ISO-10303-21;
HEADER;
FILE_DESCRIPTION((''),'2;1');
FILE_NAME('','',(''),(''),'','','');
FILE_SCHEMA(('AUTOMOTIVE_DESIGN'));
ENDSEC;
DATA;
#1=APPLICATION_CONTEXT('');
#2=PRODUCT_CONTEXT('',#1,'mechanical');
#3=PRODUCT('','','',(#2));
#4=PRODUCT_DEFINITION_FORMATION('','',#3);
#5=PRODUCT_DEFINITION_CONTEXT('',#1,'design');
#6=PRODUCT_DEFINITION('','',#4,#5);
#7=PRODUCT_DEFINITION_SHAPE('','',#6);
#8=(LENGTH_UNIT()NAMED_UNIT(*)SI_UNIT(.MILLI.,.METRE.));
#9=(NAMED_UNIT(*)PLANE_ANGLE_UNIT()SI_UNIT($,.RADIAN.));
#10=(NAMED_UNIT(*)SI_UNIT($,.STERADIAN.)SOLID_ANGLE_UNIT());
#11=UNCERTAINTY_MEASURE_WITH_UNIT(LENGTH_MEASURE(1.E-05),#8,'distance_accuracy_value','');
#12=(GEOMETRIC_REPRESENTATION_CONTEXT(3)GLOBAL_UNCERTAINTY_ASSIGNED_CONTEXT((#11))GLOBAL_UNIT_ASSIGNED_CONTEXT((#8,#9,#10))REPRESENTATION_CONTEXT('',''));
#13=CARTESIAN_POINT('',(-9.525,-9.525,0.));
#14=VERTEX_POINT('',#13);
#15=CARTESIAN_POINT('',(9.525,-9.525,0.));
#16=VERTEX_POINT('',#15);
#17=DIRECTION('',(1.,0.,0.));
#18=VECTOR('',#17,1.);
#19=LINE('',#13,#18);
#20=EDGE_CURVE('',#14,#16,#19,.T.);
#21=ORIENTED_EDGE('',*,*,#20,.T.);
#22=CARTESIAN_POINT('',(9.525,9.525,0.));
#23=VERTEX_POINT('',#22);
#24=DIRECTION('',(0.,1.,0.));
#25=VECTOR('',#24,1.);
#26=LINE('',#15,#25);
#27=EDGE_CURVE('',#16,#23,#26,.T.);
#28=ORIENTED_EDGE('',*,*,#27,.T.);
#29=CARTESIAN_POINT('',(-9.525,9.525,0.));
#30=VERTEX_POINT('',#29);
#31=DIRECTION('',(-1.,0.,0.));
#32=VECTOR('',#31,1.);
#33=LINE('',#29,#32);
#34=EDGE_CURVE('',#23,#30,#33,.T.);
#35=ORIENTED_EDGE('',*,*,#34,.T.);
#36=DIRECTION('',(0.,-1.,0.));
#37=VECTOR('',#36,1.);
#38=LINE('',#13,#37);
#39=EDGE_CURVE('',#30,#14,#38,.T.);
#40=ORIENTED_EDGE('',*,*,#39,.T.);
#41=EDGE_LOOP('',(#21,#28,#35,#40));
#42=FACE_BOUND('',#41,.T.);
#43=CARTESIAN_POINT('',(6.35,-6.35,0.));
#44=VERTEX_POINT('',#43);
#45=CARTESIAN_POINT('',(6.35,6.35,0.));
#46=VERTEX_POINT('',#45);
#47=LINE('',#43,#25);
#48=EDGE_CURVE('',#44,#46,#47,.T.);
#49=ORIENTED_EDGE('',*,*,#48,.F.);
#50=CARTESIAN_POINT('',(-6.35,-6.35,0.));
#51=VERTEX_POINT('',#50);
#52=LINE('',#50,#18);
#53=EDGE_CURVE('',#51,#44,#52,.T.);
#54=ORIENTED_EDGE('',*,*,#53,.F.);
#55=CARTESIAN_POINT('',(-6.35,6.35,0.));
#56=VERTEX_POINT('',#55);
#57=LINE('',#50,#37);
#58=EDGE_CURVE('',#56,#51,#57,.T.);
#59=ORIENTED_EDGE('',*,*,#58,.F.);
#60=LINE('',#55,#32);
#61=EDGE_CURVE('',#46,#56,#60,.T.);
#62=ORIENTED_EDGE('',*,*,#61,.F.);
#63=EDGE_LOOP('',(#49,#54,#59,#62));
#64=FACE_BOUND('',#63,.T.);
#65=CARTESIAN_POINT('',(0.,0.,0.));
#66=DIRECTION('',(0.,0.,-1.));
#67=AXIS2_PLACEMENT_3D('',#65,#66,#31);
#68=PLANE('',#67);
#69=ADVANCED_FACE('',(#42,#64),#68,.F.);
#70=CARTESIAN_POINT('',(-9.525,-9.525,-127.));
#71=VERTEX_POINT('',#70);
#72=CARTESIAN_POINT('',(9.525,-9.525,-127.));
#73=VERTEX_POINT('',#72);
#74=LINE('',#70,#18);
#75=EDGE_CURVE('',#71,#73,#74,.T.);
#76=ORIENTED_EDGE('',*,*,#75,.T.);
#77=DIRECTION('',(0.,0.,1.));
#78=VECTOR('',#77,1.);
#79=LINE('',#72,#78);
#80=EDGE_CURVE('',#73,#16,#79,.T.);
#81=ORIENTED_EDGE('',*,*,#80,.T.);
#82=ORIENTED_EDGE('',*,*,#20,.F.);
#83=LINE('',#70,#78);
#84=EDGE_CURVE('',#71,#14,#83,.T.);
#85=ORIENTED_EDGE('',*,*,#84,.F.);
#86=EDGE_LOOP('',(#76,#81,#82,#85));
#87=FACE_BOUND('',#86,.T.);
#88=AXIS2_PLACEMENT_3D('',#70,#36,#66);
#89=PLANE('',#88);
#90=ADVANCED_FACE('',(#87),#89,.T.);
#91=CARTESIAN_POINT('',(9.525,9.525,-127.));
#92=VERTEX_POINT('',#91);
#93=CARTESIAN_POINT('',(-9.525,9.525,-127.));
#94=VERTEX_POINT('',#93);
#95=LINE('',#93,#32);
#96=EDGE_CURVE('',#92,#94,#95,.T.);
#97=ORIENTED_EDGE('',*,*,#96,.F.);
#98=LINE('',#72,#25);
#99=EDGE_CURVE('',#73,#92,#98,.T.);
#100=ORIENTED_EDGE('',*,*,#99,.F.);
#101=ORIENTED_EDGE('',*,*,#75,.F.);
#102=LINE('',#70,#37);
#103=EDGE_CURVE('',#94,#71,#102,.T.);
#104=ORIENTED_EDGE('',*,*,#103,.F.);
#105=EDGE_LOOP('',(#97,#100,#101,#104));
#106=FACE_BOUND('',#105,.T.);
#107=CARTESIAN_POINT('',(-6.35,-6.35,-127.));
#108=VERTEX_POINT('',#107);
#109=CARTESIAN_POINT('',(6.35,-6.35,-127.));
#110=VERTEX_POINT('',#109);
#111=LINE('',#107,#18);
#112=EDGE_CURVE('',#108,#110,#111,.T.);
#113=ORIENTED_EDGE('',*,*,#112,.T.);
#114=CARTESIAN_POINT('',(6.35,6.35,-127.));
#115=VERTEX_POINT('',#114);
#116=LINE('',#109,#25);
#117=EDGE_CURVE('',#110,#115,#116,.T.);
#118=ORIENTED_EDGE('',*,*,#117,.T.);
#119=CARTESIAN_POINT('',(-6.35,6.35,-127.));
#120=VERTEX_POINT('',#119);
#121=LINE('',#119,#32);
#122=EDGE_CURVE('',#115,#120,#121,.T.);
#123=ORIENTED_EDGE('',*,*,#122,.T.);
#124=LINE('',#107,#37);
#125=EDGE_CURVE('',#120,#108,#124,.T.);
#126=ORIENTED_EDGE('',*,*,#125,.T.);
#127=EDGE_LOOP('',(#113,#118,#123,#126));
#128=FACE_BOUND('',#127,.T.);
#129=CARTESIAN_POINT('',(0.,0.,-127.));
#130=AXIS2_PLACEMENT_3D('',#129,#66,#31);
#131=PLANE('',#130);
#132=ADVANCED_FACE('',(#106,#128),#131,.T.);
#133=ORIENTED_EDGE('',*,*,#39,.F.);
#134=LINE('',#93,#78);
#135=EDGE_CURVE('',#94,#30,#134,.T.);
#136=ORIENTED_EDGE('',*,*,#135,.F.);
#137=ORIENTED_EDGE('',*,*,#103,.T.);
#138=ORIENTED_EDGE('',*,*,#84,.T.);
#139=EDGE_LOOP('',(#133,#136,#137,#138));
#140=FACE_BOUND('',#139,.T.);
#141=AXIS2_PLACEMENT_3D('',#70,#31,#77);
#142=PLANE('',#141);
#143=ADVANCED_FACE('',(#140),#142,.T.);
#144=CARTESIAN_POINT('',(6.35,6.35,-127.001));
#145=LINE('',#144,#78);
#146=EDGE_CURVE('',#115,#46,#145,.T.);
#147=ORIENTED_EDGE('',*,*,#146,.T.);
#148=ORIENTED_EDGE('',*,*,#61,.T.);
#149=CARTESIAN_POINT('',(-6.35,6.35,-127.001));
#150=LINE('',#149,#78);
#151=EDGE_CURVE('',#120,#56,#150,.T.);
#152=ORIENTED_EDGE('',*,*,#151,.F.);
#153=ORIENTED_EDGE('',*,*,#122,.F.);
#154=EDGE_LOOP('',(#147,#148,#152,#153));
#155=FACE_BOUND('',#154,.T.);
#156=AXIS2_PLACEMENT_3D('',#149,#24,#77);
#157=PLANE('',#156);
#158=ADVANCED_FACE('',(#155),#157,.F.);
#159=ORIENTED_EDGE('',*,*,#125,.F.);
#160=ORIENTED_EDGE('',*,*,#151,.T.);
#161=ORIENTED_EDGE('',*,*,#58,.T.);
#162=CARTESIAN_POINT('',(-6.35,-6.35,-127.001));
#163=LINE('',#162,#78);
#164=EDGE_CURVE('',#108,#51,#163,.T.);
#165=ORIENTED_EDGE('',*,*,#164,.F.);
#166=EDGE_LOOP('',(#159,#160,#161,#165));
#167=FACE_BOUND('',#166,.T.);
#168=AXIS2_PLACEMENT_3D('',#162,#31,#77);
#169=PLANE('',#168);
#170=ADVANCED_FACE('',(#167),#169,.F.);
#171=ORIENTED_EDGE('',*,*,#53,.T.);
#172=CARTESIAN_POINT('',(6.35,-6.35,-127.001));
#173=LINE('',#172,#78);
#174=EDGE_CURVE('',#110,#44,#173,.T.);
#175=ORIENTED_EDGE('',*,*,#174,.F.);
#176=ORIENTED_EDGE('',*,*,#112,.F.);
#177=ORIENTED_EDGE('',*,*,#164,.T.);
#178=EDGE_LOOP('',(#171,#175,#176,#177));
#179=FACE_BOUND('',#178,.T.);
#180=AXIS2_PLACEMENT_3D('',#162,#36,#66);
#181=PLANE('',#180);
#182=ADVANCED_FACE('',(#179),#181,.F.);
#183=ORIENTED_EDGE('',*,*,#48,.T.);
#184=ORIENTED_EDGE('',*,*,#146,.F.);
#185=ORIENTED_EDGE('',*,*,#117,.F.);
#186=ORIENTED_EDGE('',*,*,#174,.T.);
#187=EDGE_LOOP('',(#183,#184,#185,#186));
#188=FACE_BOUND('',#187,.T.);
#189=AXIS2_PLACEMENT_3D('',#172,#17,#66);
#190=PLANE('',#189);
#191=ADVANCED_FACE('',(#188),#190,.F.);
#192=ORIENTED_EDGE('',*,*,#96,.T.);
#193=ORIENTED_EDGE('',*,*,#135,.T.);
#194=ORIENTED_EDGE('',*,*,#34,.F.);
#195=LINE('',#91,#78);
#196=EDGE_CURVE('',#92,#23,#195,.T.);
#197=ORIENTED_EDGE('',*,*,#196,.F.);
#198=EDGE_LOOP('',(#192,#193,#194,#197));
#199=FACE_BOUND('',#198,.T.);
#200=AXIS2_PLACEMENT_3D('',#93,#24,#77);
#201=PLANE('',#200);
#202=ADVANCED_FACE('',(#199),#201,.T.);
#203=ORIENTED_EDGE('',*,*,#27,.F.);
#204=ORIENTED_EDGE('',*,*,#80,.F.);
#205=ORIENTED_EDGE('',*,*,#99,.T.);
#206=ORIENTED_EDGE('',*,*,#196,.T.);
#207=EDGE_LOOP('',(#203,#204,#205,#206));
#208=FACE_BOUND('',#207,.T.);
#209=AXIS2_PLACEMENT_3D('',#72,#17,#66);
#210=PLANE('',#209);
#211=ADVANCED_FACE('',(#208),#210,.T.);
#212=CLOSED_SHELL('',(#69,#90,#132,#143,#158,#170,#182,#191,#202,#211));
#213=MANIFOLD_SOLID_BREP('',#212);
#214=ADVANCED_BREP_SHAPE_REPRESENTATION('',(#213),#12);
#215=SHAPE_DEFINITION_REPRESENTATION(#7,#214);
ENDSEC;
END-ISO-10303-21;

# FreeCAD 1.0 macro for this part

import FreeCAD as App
import Part
import Sketcher
Q = App.Units.Quantity

doc = App.newDocument("Part")
body = doc.addObject("PartDesign::Body", "Body")

# Sketch on XY plane
sketch1 = doc.addObject("Sketcher::SketchObject", "Sketch")
body.addObject(sketch1)
sketch1.AttachmentSupport = (doc.XY_Plane, [""])
sketch1.MapMode = "FlatFace"
sketch1.addGeometry([
    Part.LineSegment(App.Vector(-10, 10, 0), App.Vector(-10, -10, 0)),
    Part.LineSegment(App.Vector(-10, -10, 0), App.Vector(10, -10, 0)),
    Part.LineSegment(App.Vector(10, -10, 0), App.Vector(10, 10, 0)),
    Part.LineSegment(App.Vector(10, 10, 0), App.Vector(-10, 10, 0)),
], False)
sketch1.addConstraint([
    Sketcher.Constraint("Coincident", 0, 2, 1, 1),
    Sketcher.Constraint("Coincident", 1, 2, 2, 1),
    Sketcher.Constraint("Coincident", 2, 2, 3, 1),
    Sketcher.Constraint("Coincident", 3, 2, 0, 1),
    Sketcher.Constraint("Vertical", 0),
    Sketcher.Constraint("Horizontal", 1),
    Sketcher.Constraint("Vertical", 2),
    Sketcher.Constraint("Horizontal", 3),
    Sketcher.Constraint("Symmetric", 0, 2, 2, 2, -1, 1),
    Sketcher.Constraint("Equal", 3, 0),
    Sketcher.Constraint("DistanceX", 1, 1, 1, 2, Q("0.75 in")),
])
pad1 = doc.addObject("PartDesign::Pad", "Pad")
body.addObject(pad1)
pad1.Profile = sketch1
pad1.Length = Q("5 in")
pad1.Reversed = True

# Sketch on XY plane
sketch2 = doc.addObject("Sketcher::SketchObject", "Sketch001")
body.addObject(sketch2)
sketch2.AttachmentSupport = (doc.XY_Plane, [""])
sketch2.MapMode = "FlatFace"
sketch2.addGeometry([
    Part.LineSegment(App.Vector(-6, 6, 0), App.Vector(-6, -6, 0)),
    Part.LineSegment(App.Vector(-6, -6, 0), App.Vector(6, -6, 0)),
    Part.LineSegment(App.Vector(6, -6, 0), App.Vector(6, 6, 0)),
    Part.LineSegment(App.Vector(6, 6, 0), App.Vector(-6, 6, 0)),
], False)
sketch2.addConstraint([
    Sketcher.Constraint("Coincident", 0, 2, 1, 1),
    Sketcher.Constraint("Coincident", 1, 2, 2, 1),
    Sketcher.Constraint("Coincident", 2, 2, 3, 1),
    Sketcher.Constraint("Coincident", 3, 2, 0, 1),
    Sketcher.Constraint("Vertical", 0),
    Sketcher.Constraint("Horizontal", 1),
    Sketcher.Constraint("Vertical", 2),
    Sketcher.Constraint("Horizontal", 3),
    Sketcher.Constraint("Symmetric", 0, 2, 2, 2, -1, 1),
    Sketcher.Constraint("Equal", 3, 0),
    Sketcher.Constraint("DistanceX", 1, 1, 1, 2, Q("0.5 in")),
])
pocket1 = doc.addObject("PartDesign::Pocket", "Pocket")
body.addObject(pocket1)
pocket1.Profile = sketch2
pocket1.Type = "UpToFirst"

doc.recompute()
